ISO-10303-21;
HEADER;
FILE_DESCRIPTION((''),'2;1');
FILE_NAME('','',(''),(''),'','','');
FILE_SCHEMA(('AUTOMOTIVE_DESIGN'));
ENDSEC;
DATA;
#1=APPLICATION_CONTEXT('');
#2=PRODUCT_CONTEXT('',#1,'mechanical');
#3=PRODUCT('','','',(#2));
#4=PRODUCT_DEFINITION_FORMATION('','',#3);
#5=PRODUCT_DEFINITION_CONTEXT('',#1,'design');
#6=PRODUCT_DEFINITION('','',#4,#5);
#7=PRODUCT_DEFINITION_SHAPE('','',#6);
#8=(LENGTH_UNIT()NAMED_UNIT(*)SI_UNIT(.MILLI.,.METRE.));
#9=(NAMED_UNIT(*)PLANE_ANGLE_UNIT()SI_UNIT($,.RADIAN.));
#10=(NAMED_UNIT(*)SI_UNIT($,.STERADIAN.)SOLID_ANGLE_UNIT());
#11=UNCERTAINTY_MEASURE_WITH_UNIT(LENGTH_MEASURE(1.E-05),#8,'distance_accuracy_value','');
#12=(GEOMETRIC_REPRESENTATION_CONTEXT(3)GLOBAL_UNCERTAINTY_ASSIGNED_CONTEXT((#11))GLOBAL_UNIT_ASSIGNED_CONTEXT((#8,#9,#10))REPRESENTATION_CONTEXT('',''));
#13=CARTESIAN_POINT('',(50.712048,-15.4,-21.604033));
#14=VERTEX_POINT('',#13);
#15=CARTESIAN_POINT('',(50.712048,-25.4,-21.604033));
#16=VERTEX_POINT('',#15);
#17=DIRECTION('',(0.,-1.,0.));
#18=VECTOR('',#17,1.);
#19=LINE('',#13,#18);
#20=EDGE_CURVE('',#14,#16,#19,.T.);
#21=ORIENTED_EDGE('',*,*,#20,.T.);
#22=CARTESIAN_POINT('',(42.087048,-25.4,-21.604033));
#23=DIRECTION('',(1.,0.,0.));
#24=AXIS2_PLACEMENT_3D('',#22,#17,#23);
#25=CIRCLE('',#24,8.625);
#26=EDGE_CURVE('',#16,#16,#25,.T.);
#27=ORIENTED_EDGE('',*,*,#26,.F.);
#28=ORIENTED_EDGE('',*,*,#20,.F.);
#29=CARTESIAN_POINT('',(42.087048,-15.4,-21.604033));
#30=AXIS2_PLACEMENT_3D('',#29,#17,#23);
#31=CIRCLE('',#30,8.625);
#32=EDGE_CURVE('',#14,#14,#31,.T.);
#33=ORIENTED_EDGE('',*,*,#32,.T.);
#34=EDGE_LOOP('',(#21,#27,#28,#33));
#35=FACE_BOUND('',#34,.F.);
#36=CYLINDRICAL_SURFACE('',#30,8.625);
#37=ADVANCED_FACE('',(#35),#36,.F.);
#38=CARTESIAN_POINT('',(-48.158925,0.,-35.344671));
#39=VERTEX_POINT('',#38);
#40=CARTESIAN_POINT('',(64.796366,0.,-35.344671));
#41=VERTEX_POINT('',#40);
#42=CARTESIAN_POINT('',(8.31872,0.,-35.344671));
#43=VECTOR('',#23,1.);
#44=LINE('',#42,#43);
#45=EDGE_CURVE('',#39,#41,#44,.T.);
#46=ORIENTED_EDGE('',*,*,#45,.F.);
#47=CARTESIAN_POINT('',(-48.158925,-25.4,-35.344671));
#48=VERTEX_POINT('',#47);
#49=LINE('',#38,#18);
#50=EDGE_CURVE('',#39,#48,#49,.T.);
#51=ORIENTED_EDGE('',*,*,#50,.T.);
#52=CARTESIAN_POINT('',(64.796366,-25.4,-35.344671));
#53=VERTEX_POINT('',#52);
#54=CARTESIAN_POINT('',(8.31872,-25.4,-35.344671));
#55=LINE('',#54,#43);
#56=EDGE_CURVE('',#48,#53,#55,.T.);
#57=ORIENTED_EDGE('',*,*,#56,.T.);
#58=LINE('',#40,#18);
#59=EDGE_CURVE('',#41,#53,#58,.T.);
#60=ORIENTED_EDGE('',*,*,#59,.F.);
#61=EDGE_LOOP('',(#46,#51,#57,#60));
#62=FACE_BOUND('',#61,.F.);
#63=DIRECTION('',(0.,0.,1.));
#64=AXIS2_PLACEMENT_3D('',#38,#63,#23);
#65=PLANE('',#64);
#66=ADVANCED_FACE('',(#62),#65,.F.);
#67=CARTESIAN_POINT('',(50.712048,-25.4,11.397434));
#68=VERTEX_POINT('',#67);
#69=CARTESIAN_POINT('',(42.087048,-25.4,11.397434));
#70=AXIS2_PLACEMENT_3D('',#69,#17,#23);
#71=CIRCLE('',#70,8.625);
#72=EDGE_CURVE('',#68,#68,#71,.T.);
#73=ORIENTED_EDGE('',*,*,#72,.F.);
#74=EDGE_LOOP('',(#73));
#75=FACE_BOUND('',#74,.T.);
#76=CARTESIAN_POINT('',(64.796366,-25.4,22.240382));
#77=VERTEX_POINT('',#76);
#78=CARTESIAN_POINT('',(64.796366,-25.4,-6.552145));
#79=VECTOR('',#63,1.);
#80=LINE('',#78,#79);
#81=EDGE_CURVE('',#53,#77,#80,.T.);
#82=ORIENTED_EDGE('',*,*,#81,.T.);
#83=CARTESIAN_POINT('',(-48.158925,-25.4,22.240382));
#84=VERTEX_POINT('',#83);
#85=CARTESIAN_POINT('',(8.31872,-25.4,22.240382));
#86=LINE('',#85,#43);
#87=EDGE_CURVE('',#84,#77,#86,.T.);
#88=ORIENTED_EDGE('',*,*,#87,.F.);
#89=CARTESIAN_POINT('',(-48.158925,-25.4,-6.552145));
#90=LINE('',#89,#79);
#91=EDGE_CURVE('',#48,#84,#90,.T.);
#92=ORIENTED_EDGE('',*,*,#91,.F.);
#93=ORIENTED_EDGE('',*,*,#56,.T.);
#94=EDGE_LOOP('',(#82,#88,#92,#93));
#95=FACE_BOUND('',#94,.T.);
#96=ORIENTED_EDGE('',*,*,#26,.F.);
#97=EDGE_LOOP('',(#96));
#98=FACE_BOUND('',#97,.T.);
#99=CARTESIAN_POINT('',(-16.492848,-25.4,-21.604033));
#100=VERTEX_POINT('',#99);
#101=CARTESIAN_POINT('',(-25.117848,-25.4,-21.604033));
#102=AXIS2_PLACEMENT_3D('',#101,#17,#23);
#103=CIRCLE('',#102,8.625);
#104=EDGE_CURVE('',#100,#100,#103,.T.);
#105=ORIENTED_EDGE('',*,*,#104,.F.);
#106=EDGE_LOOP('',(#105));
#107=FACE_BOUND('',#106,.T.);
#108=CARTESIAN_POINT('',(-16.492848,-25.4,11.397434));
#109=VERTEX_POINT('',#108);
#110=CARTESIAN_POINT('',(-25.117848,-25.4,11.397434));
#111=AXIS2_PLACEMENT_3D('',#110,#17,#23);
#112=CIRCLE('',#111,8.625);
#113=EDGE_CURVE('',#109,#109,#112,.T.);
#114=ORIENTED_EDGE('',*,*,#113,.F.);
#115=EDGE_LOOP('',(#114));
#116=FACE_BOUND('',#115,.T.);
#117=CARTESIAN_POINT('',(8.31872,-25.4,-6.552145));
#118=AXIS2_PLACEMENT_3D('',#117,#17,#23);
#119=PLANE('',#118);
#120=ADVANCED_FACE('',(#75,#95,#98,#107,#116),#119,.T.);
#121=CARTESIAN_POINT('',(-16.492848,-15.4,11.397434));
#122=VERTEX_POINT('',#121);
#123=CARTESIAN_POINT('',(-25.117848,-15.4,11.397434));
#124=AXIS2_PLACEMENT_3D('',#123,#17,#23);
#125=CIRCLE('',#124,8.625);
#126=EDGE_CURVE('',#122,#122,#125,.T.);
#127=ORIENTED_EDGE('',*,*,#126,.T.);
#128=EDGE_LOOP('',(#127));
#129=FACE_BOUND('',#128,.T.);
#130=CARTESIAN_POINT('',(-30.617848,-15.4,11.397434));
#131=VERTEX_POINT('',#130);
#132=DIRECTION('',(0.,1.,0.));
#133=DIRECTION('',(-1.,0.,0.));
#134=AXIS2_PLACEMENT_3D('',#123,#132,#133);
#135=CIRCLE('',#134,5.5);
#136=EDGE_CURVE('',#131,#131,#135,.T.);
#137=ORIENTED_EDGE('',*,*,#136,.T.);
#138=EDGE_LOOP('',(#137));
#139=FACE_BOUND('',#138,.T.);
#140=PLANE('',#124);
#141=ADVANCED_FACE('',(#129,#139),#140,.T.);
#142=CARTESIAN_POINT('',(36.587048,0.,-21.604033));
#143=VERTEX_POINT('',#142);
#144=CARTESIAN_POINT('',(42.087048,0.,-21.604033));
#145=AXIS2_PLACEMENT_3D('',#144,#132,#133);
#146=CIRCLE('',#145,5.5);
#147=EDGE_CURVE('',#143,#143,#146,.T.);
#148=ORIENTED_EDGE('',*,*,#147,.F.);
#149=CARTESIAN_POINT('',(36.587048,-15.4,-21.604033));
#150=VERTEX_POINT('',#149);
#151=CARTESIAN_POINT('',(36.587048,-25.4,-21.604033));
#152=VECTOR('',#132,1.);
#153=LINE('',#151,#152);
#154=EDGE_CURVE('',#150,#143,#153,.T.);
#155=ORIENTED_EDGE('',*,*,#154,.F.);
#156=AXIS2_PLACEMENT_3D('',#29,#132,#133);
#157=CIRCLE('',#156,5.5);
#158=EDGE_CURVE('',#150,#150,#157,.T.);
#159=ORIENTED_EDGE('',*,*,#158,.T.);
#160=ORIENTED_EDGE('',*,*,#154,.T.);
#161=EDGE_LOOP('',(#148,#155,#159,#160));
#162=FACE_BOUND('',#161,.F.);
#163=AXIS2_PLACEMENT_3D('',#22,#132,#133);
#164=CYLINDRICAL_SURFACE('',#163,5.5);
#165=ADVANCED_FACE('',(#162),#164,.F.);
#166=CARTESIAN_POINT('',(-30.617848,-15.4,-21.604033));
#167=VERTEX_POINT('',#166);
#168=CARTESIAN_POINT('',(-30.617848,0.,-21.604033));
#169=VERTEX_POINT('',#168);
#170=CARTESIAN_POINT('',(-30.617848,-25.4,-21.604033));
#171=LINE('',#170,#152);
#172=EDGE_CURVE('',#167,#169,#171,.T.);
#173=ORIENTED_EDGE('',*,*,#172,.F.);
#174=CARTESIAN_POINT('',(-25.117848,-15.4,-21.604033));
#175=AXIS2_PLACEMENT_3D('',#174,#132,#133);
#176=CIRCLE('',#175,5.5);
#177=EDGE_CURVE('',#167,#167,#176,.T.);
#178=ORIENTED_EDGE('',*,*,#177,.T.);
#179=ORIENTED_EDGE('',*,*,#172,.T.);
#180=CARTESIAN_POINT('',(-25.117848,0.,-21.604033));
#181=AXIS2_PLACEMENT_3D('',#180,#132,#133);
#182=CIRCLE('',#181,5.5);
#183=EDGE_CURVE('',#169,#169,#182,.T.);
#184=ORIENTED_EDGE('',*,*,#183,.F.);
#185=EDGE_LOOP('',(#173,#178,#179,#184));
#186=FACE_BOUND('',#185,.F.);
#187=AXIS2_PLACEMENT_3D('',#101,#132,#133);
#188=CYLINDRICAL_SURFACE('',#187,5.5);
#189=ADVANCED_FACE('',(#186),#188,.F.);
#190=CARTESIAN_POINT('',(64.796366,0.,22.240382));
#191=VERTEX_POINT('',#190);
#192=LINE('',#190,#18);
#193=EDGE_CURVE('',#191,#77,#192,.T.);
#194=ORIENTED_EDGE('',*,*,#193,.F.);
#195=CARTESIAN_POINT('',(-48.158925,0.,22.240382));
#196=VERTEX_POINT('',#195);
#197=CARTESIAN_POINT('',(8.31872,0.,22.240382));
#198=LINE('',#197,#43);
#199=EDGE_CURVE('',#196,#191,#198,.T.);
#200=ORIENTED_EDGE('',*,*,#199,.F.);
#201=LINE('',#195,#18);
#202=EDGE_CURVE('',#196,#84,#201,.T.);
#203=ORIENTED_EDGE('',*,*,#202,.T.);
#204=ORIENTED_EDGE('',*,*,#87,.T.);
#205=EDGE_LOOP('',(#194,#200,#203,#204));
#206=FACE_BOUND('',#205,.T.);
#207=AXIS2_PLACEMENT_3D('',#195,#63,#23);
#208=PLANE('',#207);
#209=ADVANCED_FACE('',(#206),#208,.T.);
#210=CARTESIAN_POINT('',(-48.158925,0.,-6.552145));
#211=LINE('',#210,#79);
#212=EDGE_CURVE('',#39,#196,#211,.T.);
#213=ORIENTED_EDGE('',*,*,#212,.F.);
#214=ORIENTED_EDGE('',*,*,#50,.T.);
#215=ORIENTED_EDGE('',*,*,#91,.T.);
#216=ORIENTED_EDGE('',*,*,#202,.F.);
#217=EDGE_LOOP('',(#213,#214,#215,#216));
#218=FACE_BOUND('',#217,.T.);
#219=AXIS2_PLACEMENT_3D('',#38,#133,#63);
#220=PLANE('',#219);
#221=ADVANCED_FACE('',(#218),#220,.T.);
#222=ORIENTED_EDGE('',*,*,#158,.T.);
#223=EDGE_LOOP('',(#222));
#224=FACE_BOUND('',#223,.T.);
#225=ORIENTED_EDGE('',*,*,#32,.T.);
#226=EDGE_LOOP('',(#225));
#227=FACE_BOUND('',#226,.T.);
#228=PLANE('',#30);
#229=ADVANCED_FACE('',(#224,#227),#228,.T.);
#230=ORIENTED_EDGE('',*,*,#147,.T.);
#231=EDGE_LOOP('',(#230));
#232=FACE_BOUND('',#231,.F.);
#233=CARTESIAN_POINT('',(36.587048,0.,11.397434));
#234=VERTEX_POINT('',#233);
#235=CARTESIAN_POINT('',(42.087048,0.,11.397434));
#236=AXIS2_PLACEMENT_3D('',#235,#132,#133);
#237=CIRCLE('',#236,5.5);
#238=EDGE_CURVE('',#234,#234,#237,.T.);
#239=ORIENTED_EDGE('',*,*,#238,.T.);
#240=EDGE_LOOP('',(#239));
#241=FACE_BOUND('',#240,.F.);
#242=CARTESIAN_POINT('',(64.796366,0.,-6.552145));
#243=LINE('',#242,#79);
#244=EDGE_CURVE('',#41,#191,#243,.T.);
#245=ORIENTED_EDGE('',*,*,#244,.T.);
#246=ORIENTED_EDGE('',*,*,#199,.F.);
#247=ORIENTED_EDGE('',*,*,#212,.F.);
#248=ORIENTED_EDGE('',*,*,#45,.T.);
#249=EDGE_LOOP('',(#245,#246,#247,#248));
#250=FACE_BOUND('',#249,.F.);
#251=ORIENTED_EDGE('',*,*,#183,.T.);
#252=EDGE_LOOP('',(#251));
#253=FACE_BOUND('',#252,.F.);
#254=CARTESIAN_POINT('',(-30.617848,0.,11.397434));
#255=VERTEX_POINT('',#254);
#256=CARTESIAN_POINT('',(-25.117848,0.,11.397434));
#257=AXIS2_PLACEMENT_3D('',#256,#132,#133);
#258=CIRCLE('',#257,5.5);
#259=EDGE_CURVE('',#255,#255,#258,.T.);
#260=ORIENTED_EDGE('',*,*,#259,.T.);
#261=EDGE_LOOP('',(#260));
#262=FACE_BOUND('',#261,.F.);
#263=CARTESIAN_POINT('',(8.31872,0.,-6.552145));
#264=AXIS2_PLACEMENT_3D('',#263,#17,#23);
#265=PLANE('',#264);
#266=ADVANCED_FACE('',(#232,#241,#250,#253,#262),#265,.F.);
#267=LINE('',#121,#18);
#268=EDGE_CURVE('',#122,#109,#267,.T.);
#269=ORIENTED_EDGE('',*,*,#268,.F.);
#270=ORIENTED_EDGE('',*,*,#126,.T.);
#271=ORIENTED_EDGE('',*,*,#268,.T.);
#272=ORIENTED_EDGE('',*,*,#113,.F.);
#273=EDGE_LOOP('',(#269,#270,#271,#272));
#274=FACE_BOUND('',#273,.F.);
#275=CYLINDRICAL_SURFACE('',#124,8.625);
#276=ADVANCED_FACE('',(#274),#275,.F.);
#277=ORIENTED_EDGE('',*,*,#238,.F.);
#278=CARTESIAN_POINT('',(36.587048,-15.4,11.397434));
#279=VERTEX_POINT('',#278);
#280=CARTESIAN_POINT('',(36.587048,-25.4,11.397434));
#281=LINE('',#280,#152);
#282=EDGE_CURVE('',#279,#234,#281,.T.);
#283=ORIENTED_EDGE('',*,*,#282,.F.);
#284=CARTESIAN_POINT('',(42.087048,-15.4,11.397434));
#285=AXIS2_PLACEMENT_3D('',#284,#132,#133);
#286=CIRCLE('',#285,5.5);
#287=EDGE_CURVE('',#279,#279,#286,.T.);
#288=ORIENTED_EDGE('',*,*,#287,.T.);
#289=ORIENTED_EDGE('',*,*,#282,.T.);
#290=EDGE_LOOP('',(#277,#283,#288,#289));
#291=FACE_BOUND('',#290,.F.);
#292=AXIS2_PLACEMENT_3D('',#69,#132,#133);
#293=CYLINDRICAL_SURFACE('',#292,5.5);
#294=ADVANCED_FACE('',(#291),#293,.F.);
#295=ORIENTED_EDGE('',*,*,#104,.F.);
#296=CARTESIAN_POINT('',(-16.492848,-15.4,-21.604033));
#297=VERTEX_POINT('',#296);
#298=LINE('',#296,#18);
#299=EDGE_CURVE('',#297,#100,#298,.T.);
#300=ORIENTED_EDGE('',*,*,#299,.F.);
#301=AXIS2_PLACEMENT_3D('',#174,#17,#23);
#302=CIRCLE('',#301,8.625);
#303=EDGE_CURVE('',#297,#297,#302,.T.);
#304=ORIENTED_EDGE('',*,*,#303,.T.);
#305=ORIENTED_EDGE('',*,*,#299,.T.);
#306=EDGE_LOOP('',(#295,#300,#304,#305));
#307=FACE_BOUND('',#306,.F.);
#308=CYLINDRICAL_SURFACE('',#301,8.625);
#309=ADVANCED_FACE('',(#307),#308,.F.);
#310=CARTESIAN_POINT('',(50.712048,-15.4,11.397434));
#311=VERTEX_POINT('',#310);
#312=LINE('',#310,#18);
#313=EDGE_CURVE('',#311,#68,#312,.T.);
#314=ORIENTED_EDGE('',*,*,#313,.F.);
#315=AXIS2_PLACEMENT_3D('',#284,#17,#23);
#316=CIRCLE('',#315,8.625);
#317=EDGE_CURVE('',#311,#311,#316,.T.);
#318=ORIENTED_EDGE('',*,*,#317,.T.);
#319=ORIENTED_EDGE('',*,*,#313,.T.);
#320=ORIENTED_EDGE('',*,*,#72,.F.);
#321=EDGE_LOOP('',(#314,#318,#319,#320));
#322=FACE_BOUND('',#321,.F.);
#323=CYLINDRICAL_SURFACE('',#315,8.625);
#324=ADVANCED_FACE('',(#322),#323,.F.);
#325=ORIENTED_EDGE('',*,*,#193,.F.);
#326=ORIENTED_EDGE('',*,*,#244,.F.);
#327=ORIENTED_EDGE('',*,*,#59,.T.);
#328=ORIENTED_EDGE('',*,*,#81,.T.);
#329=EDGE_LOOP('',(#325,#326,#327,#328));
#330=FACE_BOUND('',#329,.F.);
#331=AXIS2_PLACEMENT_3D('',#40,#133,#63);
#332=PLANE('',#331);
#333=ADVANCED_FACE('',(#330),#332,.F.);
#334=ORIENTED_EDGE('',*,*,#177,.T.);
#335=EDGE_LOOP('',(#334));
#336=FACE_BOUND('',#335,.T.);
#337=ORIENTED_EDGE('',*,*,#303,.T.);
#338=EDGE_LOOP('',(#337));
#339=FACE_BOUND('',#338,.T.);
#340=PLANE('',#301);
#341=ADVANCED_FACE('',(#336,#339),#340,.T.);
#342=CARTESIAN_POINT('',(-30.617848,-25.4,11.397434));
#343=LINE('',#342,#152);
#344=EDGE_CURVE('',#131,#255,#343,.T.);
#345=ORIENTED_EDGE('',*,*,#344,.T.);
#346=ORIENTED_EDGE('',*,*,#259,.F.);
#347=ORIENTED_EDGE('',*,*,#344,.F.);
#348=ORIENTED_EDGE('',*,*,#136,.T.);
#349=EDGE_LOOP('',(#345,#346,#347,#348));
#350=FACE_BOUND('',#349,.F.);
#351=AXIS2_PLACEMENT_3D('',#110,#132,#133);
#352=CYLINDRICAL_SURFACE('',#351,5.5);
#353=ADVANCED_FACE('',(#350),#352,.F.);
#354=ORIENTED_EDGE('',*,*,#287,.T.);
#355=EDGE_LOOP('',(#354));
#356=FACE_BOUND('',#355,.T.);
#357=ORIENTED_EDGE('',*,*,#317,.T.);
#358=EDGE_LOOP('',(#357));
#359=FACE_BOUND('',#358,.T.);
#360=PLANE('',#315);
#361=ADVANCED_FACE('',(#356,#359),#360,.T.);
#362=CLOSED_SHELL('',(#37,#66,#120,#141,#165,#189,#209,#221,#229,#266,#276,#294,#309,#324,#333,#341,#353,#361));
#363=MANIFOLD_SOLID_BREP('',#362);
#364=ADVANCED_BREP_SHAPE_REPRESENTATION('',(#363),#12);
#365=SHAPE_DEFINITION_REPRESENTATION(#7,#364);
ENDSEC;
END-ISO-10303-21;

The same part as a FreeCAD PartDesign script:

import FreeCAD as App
import Part
import Sketcher
from FreeCAD import Vector


def add_polygon(sketch, points):
    """Adds a closed chain of lines whose ends are joined by coincident constraints."""
    first, n = sketch.GeometryCount, len(points)
    for a, b in zip(points, points[1:] + points[:1]):
        sketch.addGeometry(Part.LineSegment(App.Vector(*a, 0), App.Vector(*b, 0)), False)
    for i in range(n):
        sketch.addConstraint(Sketcher.Constraint("Coincident", first + i, 2, first + (i + 1) % n, 1))

doc = App.newDocument("Part")
body = doc.addObject("PartDesign::Body", "Body")

sketch1 = doc.addObject("Sketcher::SketchObject", "Sketch")
body.addObject(sketch1)
sketch1.AttachmentSupport = (doc.XZ_Plane, [""])
sketch1.MapMode = "FlatFace"
add_polygon(sketch1, [(-48, 22), (-48, -35), (65, -35), (65, 22)])
sketch1.addConstraint(Sketcher.Constraint("Vertical", 0))
sketch1.addConstraint(Sketcher.Constraint("Horizontal", 1))
sketch1.addConstraint(Sketcher.Constraint("Vertical", 2))
sketch1.addConstraint(Sketcher.Constraint("Horizontal", 3))
sketch1.addConstraint(Sketcher.Constraint("DistanceX", 1, 1, 1, 2, 112.955291))
sketch1.addConstraint(Sketcher.Constraint("DistanceY", 0, 2, 0, 1, 57.585053))
sketch1.addConstraint(Sketcher.Constraint("DistanceY", 0, 2, -1, 1, 35.344671))
sketch1.addConstraint(Sketcher.Constraint("DistanceX", 0, 2, -1, 1, 48.158925))
pad1 = doc.addObject("PartDesign::Pad", "Pad")
body.addObject(pad1)
pad1.Profile = sketch1
pad1.Length = 25.4

sketch2 = doc.addObject("Sketcher::SketchObject", "Sketch001")
body.addObject(sketch2)
sketch2.AttachmentSupport = (doc.XZ_Plane, [""])
sketch2.MapMode = "FlatFace"
sketch2.AttachmentOffset = App.Placement(Vector(0, 0, 25.4), App.Rotation())
sketch2.addGeometry(Part.Circle(Vector(-25, 11, 0), Vector(0, 0, 1), 6), False)
sketch2.addGeometry(Part.Circle(Vector(-25, -22, 0), Vector(0, 0, 1), 6), False)
sketch2.addGeometry(Part.Circle(Vector(42, 11, 0), Vector(0, 0, 1), 6), False)
sketch2.addGeometry(Part.Circle(Vector(42, -22, 0), Vector(0, 0, 1), 6), False)
sketch2.addConstraint(Sketcher.Constraint("Equal", 0, 1))
sketch2.addConstraint(Sketcher.Constraint("Equal", 1, 2))
sketch2.addConstraint(Sketcher.Constraint("Equal", 2, 3))
sketch2.addConstraint(Sketcher.Constraint("Horizontal", 0, 3, 2, 3))
sketch2.addConstraint(Sketcher.Constraint("Horizontal", 1, 3, 3, 3))
sketch2.addConstraint(Sketcher.Constraint("Vertical", 0, 3, 1, 3))
sketch2.addConstraint(Sketcher.Constraint("Vertical", 2, 3, 3, 3))
sketch2.addConstraint(Sketcher.Constraint("Diameter", 0, 11.0))
sketch2.addConstraint(Sketcher.Constraint("DistanceX", 0, 3, -1, 1, 25.117848))
sketch2.addConstraint(Sketcher.Constraint("DistanceX", -1, 1, 2, 3, 42.087048))
sketch2.addConstraint(Sketcher.Constraint("DistanceY", -1, 1, 0, 3, 11.397434))
sketch2.addConstraint(Sketcher.Constraint("DistanceY", 1, 3, -1, 1, 21.604033))
doc.recompute()
hole = doc.addObject("PartDesign::Hole", "Hole")
body.addObject(hole)
hole.Profile = sketch2
hole.ThreadType = "None"
hole.Diameter = 11
hole.DepthType = "ThroughAll"
hole.HoleCutType = "Counterbore"
hole.HoleCutDiameter = 17.25
hole.HoleCutDepth = 10

doc.recompute()
